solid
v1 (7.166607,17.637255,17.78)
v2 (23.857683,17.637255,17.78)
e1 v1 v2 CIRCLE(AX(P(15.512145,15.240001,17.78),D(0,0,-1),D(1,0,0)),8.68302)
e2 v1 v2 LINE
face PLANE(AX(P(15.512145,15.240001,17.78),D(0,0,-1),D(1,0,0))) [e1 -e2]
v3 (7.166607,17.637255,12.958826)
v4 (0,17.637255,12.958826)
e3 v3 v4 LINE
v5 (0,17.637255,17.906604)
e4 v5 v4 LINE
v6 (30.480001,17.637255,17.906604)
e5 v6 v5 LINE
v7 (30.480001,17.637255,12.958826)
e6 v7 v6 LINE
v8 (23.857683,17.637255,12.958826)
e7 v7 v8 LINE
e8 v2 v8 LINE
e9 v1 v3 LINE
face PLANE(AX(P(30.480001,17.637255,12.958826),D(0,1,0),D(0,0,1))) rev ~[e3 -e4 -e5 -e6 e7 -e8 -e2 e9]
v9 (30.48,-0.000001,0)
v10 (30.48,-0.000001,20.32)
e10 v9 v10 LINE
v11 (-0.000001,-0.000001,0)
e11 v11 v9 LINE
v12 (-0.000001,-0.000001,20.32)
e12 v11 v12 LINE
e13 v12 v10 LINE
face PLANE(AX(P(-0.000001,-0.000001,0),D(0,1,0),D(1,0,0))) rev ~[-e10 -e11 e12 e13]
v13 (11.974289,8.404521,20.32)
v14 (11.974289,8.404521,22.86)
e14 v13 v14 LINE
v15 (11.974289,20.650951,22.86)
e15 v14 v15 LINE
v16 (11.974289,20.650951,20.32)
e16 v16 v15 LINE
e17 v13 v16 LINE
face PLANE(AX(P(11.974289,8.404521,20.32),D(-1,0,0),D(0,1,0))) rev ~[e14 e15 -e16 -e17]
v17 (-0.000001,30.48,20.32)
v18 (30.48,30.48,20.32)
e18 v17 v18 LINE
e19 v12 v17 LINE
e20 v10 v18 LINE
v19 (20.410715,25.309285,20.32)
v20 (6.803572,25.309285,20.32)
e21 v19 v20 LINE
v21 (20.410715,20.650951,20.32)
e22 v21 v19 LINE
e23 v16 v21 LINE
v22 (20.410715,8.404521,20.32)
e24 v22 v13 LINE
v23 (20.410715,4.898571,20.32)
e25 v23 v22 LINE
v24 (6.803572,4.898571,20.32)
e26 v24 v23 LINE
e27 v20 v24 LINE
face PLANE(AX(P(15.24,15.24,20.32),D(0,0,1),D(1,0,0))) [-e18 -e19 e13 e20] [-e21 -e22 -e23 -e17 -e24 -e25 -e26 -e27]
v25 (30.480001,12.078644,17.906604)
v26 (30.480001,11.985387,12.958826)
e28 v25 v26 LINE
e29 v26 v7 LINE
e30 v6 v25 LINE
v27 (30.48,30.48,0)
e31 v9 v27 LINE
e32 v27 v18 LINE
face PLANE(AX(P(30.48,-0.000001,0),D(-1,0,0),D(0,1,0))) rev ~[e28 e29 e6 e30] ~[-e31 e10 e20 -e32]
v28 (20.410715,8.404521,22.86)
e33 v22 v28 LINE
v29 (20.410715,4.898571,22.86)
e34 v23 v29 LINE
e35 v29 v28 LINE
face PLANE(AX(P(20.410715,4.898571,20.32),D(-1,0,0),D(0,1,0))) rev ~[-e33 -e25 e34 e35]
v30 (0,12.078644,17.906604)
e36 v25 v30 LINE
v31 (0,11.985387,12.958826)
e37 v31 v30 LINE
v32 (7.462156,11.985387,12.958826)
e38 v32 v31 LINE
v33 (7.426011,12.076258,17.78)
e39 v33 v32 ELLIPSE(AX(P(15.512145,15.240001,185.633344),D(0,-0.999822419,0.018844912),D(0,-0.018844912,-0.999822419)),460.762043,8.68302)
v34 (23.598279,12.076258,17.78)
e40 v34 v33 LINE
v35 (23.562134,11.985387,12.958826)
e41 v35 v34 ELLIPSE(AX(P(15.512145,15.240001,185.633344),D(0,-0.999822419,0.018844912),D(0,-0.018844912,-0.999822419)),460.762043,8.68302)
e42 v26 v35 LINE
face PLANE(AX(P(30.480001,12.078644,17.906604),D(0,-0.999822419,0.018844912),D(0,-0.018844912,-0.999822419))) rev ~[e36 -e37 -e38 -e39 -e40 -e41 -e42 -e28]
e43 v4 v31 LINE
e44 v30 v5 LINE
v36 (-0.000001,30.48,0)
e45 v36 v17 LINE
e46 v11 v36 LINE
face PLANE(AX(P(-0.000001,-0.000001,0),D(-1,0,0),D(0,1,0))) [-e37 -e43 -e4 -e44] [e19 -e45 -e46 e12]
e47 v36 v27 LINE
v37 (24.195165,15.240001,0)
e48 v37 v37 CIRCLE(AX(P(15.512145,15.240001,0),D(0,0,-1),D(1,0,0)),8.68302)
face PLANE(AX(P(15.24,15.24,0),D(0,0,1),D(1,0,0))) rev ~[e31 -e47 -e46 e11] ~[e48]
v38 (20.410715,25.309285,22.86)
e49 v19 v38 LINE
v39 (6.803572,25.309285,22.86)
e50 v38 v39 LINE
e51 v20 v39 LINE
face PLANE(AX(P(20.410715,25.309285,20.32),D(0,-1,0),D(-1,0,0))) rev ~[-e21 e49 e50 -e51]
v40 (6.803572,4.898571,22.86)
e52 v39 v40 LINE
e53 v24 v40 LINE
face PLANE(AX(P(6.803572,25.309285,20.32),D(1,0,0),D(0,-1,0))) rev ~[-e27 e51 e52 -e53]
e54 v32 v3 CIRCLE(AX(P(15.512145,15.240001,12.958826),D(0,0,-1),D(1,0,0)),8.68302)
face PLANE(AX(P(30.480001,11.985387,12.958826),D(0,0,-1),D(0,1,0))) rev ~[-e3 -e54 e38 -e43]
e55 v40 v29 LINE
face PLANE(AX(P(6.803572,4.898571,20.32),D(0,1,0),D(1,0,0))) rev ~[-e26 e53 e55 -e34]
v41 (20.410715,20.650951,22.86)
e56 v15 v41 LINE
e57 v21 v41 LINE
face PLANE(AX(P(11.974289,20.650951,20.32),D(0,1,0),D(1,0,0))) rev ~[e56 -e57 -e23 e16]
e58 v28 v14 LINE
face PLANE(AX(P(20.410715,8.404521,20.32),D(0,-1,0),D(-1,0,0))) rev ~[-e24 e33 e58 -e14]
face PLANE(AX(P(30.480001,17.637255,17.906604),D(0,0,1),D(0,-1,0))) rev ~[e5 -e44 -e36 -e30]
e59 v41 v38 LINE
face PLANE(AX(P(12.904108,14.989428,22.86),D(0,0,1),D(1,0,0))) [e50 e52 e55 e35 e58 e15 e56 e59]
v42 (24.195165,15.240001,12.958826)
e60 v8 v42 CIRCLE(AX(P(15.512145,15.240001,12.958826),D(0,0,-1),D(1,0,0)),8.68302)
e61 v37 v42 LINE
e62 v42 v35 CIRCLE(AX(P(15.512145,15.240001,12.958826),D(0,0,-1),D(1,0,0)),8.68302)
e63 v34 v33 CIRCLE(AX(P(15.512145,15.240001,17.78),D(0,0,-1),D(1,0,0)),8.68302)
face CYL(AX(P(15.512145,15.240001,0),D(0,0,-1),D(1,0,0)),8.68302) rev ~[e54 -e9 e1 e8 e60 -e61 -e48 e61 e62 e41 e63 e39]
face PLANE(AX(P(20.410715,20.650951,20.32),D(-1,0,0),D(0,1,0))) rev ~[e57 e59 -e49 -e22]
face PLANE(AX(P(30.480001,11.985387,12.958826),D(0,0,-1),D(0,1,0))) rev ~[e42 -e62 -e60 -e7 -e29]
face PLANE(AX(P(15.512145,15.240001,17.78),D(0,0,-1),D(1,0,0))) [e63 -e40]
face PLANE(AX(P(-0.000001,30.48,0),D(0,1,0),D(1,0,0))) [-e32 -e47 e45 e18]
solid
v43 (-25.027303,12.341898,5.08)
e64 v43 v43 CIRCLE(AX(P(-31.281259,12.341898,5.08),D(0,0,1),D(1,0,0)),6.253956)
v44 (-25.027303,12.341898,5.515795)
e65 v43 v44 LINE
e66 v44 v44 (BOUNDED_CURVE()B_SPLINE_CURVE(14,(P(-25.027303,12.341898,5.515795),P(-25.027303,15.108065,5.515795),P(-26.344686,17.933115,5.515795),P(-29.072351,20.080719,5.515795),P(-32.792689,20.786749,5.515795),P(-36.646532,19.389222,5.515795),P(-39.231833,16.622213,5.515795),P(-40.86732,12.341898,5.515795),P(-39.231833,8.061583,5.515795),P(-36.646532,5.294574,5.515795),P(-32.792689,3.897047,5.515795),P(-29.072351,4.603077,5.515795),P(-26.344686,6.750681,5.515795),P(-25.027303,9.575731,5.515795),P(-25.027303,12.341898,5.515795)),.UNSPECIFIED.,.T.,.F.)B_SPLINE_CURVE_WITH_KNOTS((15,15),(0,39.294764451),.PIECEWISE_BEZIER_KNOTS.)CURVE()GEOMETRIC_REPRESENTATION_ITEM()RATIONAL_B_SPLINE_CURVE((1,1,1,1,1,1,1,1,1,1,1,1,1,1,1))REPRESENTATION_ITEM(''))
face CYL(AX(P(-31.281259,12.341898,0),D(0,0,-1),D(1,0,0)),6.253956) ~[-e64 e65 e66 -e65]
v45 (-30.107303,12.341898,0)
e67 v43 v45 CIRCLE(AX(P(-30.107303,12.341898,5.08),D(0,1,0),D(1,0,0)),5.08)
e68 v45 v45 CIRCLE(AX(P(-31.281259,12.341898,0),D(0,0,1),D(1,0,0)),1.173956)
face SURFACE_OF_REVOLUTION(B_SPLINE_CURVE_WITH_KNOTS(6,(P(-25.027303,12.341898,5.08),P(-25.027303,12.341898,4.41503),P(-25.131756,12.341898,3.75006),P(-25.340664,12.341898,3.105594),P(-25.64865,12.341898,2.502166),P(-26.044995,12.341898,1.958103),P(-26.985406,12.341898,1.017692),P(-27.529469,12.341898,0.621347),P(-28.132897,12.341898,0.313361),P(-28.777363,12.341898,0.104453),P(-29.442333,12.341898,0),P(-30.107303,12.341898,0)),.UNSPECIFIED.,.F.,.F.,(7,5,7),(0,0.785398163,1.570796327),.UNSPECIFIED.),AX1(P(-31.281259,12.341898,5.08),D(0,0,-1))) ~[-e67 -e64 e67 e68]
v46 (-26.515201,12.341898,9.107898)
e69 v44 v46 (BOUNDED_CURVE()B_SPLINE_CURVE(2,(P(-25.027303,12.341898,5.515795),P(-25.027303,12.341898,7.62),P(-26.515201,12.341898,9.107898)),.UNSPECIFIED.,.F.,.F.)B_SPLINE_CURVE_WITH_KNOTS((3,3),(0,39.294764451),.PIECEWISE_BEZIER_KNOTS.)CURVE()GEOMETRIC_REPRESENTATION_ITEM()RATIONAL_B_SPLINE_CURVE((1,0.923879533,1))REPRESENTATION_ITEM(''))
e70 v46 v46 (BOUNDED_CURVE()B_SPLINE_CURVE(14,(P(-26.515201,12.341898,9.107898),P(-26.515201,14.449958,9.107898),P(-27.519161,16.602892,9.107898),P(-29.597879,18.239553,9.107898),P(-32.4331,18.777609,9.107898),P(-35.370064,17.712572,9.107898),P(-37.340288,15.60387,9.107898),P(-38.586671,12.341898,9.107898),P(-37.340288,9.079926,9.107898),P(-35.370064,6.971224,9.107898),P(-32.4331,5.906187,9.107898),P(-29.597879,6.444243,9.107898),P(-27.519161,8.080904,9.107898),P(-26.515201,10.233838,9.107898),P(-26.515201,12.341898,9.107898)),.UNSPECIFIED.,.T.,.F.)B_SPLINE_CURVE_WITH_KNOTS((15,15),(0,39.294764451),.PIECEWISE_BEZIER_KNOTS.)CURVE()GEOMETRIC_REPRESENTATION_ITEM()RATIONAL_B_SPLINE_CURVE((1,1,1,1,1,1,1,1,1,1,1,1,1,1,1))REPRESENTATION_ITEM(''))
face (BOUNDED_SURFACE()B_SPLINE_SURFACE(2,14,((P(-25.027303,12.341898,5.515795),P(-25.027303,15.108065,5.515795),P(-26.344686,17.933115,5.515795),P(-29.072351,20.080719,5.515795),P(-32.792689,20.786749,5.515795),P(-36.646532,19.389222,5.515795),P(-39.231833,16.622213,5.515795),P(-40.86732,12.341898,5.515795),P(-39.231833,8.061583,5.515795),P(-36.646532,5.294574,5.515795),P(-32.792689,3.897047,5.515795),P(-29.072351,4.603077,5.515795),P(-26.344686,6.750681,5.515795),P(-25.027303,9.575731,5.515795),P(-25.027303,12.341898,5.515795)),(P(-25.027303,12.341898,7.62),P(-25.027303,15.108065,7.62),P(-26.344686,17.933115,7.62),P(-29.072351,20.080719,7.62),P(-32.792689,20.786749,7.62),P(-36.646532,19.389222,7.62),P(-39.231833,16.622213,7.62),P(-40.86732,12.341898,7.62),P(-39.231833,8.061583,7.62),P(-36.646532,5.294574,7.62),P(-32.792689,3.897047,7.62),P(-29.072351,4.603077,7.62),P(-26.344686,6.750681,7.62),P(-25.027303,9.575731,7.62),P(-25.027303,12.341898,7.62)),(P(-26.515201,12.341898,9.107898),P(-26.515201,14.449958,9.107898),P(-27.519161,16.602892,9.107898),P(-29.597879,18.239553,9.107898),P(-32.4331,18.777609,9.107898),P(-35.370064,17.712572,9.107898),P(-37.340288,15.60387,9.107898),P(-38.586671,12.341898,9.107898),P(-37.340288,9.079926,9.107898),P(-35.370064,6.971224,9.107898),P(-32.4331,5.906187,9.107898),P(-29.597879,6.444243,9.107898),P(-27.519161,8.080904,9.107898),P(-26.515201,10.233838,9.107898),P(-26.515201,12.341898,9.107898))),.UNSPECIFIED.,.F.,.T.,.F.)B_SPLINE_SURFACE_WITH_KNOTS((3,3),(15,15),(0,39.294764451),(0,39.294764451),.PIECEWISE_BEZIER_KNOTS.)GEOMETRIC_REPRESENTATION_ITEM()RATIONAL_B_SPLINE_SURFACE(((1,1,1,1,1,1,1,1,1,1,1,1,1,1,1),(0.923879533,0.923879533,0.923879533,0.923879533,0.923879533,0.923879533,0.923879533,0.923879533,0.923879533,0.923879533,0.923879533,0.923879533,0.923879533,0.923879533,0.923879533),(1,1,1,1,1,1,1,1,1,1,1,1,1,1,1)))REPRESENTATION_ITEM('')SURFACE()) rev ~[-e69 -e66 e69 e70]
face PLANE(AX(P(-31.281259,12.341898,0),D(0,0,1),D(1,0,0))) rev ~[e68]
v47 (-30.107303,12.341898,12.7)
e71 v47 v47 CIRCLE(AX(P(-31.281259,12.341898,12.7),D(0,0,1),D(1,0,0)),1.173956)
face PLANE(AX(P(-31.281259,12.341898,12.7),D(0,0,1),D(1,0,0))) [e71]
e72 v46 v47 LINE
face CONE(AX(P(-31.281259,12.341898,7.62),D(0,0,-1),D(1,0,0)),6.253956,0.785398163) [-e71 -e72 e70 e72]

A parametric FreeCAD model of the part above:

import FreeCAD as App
import Part
import Sketcher
Q = App.Units.Quantity


def edges_at(feature, points):
    """Names of the edges that pass closest to the given points."""
    edges = feature.Shape.Edges
    near = lambda p: min(range(len(edges)), key=lambda i: edges[i].distToShape(Part.Vertex(*p))[0])
    return sorted({f"Edge{near(p) + 1}" for p in points})

doc = App.newDocument("Part")
body = doc.addObject("PartDesign::Body", "Body")

# Sketch on XY plane
sketch1 = body.newObject("Sketcher::SketchObject", "Sketch")
sketch1.AttachmentSupport = (doc.getObject("XY_Plane"), [""])
sketch1.MapMode = "FlatFace"
sketch1.addGeometry([
    Part.LineSegment(App.Vector(0, 30, 0), App.Vector(0, 0, 0)),
    Part.LineSegment(App.Vector(0, 0, 0), App.Vector(30, 0, 0)),
    Part.LineSegment(App.Vector(30, 0, 0), App.Vector(30, 30, 0)),
    Part.LineSegment(App.Vector(30, 30, 0), App.Vector(0, 30, 0)),
], False)
sketch1.addConstraint([
    Sketcher.Constraint("Coincident", 0, 2, 1, 1),
    Sketcher.Constraint("Coincident", 1, 2, 2, 1),
    Sketcher.Constraint("Coincident", 2, 2, 3, 1),
    Sketcher.Constraint("Coincident", 3, 2, 0, 1),
    Sketcher.Constraint("Vertical", 0),
    Sketcher.Constraint("Horizontal", 1),
    Sketcher.Constraint("Vertical", 2),
    Sketcher.Constraint("Horizontal", 3),
    Sketcher.Constraint("Coincident", 0, 2, -1, 1),
    Sketcher.Constraint("Equal", 3, 0),
    Sketcher.Constraint("DistanceX", 1, 1, 1, 2, Q("1.2 in")),
])
pad1 = body.newObject("PartDesign::Pad", "Pad")
pad1.Profile = sketch1
pad1.Length = Q("0.8 in")

# Sketch on XY plane
sketch2 = body.newObject("Sketcher::SketchObject", "Sketch001")
sketch2.AttachmentSupport = (doc.getObject("XY_Plane"), [""])
sketch2.MapMode = "FlatFace"
sketch2.addGeometry(Part.Circle(App.Vector(16, 15, 0), App.Vector(0, 0, 1), 9), False)
sketch2.addConstraint([
    Sketcher.Constraint("DistanceY", -1, 1, 0, 3, Q("0.6 in")),
    Sketcher.Constraint("Diameter", 0, 17.36604),
    Sketcher.Constraint("DistanceX", -1, 1, 0, 3, 15.512145),
])
pocket1 = body.newObject("PartDesign::Pocket", "Pocket")
pocket1.Profile = sketch2
pocket1.Length = Q("0.7 in")
pocket1.Reversed = True

# Sketch on YZ plane
sketch3 = body.newObject("Sketcher::SketchObject", "Sketch002")
sketch3.AttachmentSupport = (doc.getObject("YZ_Plane"), [""])
sketch3.MapMode = "FlatFace"
sketch3.AttachmentOffset = App.Placement(App.Vector(0, 0, 1.2 * 25.4), App.Rotation())
sketch3.addGeometry([
    Part.LineSegment(App.Vector(12.1, 17.9, 0), App.Vector(12, 13, 0)),
    Part.LineSegment(App.Vector(12, 13, 0), App.Vector(17.6, 13, 0)),
    Part.LineSegment(App.Vector(17.6, 13, 0), App.Vector(17.6, 17.9, 0)),
    Part.LineSegment(App.Vector(17.6, 17.9, 0), App.Vector(12.1, 17.9, 0)),
], False)
sketch3.addConstraint([
    Sketcher.Constraint("Coincident", 0, 2, 1, 1),
    Sketcher.Constraint("Coincident", 1, 2, 2, 1),
    Sketcher.Constraint("Coincident", 2, 2, 3, 1),
    Sketcher.Constraint("Coincident", 3, 2, 0, 1),
    Sketcher.Constraint("Horizontal", 1),
    Sketcher.Constraint("Vertical", 2),
    Sketcher.Constraint("Horizontal", 3),
    Sketcher.Constraint("DistanceX", 1, 1, 1, 2, 5.651868),
    Sketcher.Constraint("DistanceX", 3, 2, 3, 1, 5.558611),
    Sketcher.Constraint("DistanceY", 2, 1, 2, 2, 4.947778),
    Sketcher.Constraint("DistanceX", -1, 1, 0, 2, 11.985387),
    Sketcher.Constraint("DistanceY", -1, 1, 0, 2, 12.958826),
])
pocket2 = body.newObject("PartDesign::Pocket", "Pocket001")
pocket2.Profile = sketch3
pocket2.Length = Q("1.4 in")

# Sketch on XY plane
sketch4 = body.newObject("Sketcher::SketchObject", "Sketch003")
sketch4.AttachmentSupport = (doc.getObject("XY_Plane"), [""])
sketch4.MapMode = "FlatFace"
sketch4.AttachmentOffset = App.Placement(App.Vector(0, 0, 0.8 * 25.4), App.Rotation())
sketch4.addGeometry([
    Part.LineSegment(App.Vector(12, 20.7, 0), App.Vector(20.4, 20.7, 0)),  # 0
    Part.LineSegment(App.Vector(20.4, 20.7, 0), App.Vector(20.4, 25.3, 0)),  # 1
    Part.LineSegment(App.Vector(20.4, 25.3, 0), App.Vector(6.8, 25.3, 0)),  # 2
    Part.LineSegment(App.Vector(6.8, 25.3, 0), App.Vector(6.8, 4.9, 0)),  # 3
    Part.LineSegment(App.Vector(6.8, 4.9, 0), App.Vector(20.4, 4.9, 0)),  # 4
    Part.LineSegment(App.Vector(20.4, 4.9, 0), App.Vector(20.4, 8.4, 0)),  # 5
    Part.LineSegment(App.Vector(20.4, 8.4, 0), App.Vector(12, 8.4, 0)),  # 6
    Part.LineSegment(App.Vector(12, 8.4, 0), App.Vector(12, 20.7, 0)),  # 7
], False)
sketch4.addConstraint([
    Sketcher.Constraint("Coincident", 0, 2, 1, 1),
    Sketcher.Constraint("Coincident", 1, 2, 2, 1),
    Sketcher.Constraint("Coincident", 2, 2, 3, 1),
    Sketcher.Constraint("Coincident", 3, 2, 4, 1),
    Sketcher.Constraint("Coincident", 4, 2, 5, 1),
    Sketcher.Constraint("Coincident", 5, 2, 6, 1),
    Sketcher.Constraint("Coincident", 6, 2, 7, 1),
    Sketcher.Constraint("Coincident", 7, 2, 0, 1),
    Sketcher.Constraint("Horizontal", 0),
    Sketcher.Constraint("Vertical", 1),
    Sketcher.Constraint("Horizontal", 2),
    Sketcher.Constraint("Vertical", 3),
    Sketcher.Constraint("Horizontal", 4),
    Sketcher.Constraint("Vertical", 5),
    Sketcher.Constraint("Horizontal", 6),
    Sketcher.Constraint("Vertical", 7),
    Sketcher.Constraint("Vertical", 1, 2, 4, 2),
    Sketcher.Constraint("DistanceY", 5, 1, 5, 2, 3.50595),
    Sketcher.Constraint("DistanceY", 7, 1, 7, 2, 12.24643),
    Sketcher.Constraint("DistanceX", 0, 1, 0, 2, 8.436426),
    Sketcher.Constraint("DistanceX", 2, 2, 2, 1, 13.607143),
    Sketcher.Constraint("DistanceY", 1, 1, 1, 2, 4.658334),
    Sketcher.Constraint("DistanceY", -1, 1, 0, 2, 20.650951),
    Sketcher.Constraint("DistanceX", -1, 1, 6, 2, 11.974289),
])
pad2 = body.newObject("PartDesign::Pad", "Pad001")
pad2.Profile = sketch4
pad2.Length = Q("0.1 in")
body2 = doc.addObject("PartDesign::Body", "Body001")

# Sketch on XY plane
sketch5 = body2.newObject("Sketcher::SketchObject", "Sketch004")
sketch5.AttachmentSupport = (doc.getObject("XY_Plane001"), [""])
sketch5.MapMode = "FlatFace"
sketch5.addGeometry(Part.Circle(App.Vector(-31, 12, 0), App.Vector(0, 0, 1), 6), False)
sketch5.addConstraint([
    Sketcher.Constraint("Diameter", 0, 12.507912),
    Sketcher.Constraint("DistanceX", 0, 3, -1, 1, 31.281259),
    Sketcher.Constraint("DistanceY", -1, 1, 0, 3, 12.341898),
])
pad3 = body2.newObject("PartDesign::Pad", "Pad002")
pad3.Profile = sketch5
pad3.Length = Q("0.5 in")
doc.recompute()

chamfer = body2.newObject("PartDesign::Chamfer", "Chamfer")
chamfer.Base = (pad3, edges_at(pad3, [(-37.535, 12.342, 12.7)]))
chamfer.Size = Q("0.2 in")
doc.recompute()

fillet = body2.newObject("PartDesign::Fillet", "Fillet")
fillet.Base = (chamfer, edges_at(chamfer, [(-25.027, 12.342, 3.81), (-37.535, 12.342, 7.62), (-37.535, 12.342, 0)]))
fillet.Radius = Q("0.2 in")

doc.recompute()
